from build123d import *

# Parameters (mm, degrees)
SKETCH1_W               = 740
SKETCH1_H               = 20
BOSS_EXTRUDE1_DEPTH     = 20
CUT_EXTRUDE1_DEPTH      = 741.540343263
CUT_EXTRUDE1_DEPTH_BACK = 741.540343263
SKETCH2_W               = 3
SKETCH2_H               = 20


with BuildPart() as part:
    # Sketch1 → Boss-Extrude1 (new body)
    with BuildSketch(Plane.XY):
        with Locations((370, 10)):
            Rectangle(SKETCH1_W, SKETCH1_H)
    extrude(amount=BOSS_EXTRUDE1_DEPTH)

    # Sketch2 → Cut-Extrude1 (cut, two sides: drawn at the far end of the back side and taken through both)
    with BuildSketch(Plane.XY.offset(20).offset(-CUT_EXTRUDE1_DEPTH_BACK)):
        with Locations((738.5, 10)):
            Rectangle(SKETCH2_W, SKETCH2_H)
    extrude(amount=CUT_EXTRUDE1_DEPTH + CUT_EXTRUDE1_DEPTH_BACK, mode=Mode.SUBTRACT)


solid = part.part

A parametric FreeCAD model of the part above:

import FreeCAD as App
import Part
import Sketcher

doc = App.newDocument("Part")
body = doc.addObject("PartDesign::Body", "Body")

# Sketch on XY plane
sketch1 = body.newObject("Sketcher::SketchObject", "Sketch")
sketch1.AttachmentSupport = (doc.getObject("XY_Plane"), [""])
sketch1.MapMode = "FlatFace"
sketch1.addGeometry(Part.LineSegment(App.Vector(0, 20, 0), App.Vector(0, 0, 0)), False)
sketch1.addGeometry(Part.LineSegment(App.Vector(0, 0, 0), App.Vector(740, 0, 0)), False)
sketch1.addGeometry(Part.LineSegment(App.Vector(740, 0, 0), App.Vector(740, 20, 0)), False)
sketch1.addGeometry(Part.LineSegment(App.Vector(740, 20, 0), App.Vector(0, 20, 0)), False)
sketch1.addConstraint(Sketcher.Constraint("Coincident", 0, 2, 1, 1))
sketch1.addConstraint(Sketcher.Constraint("Coincident", 1, 2, 2, 1))
sketch1.addConstraint(Sketcher.Constraint("Coincident", 2, 2, 3, 1))
sketch1.addConstraint(Sketcher.Constraint("Coincident", 3, 2, 0, 1))
sketch1.addConstraint(Sketcher.Constraint("Vertical", 0))
sketch1.addConstraint(Sketcher.Constraint("Horizontal", 1))
sketch1.addConstraint(Sketcher.Constraint("Vertical", 2))
sketch1.addConstraint(Sketcher.Constraint("Horizontal", 3))
sketch1.addConstraint(Sketcher.Constraint("Coincident", 0, 2, -1, 1))
sketch1.addConstraint(Sketcher.Constraint("DistanceX", 1, 1, 1, 2, 740.0))
sketch1.addConstraint(Sketcher.Constraint("DistanceY", 0, 2, 0, 1, 20.0))
pad1 = body.newObject("PartDesign::Pad", "Pad")
pad1.Profile = sketch1
pad1.Length = 20

# Sketch on XY plane
sketch2 = body.newObject("Sketcher::SketchObject", "Sketch001")
sketch2.AttachmentSupport = (doc.getObject("XY_Plane"), [""])
sketch2.MapMode = "FlatFace"
sketch2.AttachmentOffset = App.Placement(App.Vector(0, 0, 20), App.Rotation())
sketch2.addGeometry(Part.LineSegment(App.Vector(737, 20, 0), App.Vector(737, 0, 0)), False)
sketch2.addGeometry(Part.LineSegment(App.Vector(737, 0, 0), App.Vector(740, 0, 0)), False)
sketch2.addGeometry(Part.LineSegment(App.Vector(740, 0, 0), App.Vector(740, 20, 0)), False)
sketch2.addGeometry(Part.LineSegment(App.Vector(740, 20, 0), App.Vector(737, 20, 0)), False)
sketch2.addConstraint(Sketcher.Constraint("Coincident", 0, 2, 1, 1))
sketch2.addConstraint(Sketcher.Constraint("Coincident", 1, 2, 2, 1))
sketch2.addConstraint(Sketcher.Constraint("Coincident", 2, 2, 3, 1))
sketch2.addConstraint(Sketcher.Constraint("Coincident", 3, 2, 0, 1))
sketch2.addConstraint(Sketcher.Constraint("Vertical", 0))
sketch2.addConstraint(Sketcher.Constraint("Horizontal", 1))
sketch2.addConstraint(Sketcher.Constraint("Vertical", 2))
sketch2.addConstraint(Sketcher.Constraint("Horizontal", 3))
sketch2.addConstraint(Sketcher.Constraint("PointOnObject", 0, 2, -1))
sketch2.addConstraint(Sketcher.Constraint("DistanceX", 1, 1, 1, 2, 3.0))
sketch2.addConstraint(Sketcher.Constraint("DistanceY", 0, 2, 0, 1, 20.0))
sketch2.addConstraint(Sketcher.Constraint("DistanceX", -1, 1, 0, 2, 737.0))
pocket1 = body.newObject("PartDesign::Pocket", "Pocket")
pocket1.Profile = sketch2
pocket1.Type = "ThroughAll"
pocket1.Midplane = True

doc.recompute()
